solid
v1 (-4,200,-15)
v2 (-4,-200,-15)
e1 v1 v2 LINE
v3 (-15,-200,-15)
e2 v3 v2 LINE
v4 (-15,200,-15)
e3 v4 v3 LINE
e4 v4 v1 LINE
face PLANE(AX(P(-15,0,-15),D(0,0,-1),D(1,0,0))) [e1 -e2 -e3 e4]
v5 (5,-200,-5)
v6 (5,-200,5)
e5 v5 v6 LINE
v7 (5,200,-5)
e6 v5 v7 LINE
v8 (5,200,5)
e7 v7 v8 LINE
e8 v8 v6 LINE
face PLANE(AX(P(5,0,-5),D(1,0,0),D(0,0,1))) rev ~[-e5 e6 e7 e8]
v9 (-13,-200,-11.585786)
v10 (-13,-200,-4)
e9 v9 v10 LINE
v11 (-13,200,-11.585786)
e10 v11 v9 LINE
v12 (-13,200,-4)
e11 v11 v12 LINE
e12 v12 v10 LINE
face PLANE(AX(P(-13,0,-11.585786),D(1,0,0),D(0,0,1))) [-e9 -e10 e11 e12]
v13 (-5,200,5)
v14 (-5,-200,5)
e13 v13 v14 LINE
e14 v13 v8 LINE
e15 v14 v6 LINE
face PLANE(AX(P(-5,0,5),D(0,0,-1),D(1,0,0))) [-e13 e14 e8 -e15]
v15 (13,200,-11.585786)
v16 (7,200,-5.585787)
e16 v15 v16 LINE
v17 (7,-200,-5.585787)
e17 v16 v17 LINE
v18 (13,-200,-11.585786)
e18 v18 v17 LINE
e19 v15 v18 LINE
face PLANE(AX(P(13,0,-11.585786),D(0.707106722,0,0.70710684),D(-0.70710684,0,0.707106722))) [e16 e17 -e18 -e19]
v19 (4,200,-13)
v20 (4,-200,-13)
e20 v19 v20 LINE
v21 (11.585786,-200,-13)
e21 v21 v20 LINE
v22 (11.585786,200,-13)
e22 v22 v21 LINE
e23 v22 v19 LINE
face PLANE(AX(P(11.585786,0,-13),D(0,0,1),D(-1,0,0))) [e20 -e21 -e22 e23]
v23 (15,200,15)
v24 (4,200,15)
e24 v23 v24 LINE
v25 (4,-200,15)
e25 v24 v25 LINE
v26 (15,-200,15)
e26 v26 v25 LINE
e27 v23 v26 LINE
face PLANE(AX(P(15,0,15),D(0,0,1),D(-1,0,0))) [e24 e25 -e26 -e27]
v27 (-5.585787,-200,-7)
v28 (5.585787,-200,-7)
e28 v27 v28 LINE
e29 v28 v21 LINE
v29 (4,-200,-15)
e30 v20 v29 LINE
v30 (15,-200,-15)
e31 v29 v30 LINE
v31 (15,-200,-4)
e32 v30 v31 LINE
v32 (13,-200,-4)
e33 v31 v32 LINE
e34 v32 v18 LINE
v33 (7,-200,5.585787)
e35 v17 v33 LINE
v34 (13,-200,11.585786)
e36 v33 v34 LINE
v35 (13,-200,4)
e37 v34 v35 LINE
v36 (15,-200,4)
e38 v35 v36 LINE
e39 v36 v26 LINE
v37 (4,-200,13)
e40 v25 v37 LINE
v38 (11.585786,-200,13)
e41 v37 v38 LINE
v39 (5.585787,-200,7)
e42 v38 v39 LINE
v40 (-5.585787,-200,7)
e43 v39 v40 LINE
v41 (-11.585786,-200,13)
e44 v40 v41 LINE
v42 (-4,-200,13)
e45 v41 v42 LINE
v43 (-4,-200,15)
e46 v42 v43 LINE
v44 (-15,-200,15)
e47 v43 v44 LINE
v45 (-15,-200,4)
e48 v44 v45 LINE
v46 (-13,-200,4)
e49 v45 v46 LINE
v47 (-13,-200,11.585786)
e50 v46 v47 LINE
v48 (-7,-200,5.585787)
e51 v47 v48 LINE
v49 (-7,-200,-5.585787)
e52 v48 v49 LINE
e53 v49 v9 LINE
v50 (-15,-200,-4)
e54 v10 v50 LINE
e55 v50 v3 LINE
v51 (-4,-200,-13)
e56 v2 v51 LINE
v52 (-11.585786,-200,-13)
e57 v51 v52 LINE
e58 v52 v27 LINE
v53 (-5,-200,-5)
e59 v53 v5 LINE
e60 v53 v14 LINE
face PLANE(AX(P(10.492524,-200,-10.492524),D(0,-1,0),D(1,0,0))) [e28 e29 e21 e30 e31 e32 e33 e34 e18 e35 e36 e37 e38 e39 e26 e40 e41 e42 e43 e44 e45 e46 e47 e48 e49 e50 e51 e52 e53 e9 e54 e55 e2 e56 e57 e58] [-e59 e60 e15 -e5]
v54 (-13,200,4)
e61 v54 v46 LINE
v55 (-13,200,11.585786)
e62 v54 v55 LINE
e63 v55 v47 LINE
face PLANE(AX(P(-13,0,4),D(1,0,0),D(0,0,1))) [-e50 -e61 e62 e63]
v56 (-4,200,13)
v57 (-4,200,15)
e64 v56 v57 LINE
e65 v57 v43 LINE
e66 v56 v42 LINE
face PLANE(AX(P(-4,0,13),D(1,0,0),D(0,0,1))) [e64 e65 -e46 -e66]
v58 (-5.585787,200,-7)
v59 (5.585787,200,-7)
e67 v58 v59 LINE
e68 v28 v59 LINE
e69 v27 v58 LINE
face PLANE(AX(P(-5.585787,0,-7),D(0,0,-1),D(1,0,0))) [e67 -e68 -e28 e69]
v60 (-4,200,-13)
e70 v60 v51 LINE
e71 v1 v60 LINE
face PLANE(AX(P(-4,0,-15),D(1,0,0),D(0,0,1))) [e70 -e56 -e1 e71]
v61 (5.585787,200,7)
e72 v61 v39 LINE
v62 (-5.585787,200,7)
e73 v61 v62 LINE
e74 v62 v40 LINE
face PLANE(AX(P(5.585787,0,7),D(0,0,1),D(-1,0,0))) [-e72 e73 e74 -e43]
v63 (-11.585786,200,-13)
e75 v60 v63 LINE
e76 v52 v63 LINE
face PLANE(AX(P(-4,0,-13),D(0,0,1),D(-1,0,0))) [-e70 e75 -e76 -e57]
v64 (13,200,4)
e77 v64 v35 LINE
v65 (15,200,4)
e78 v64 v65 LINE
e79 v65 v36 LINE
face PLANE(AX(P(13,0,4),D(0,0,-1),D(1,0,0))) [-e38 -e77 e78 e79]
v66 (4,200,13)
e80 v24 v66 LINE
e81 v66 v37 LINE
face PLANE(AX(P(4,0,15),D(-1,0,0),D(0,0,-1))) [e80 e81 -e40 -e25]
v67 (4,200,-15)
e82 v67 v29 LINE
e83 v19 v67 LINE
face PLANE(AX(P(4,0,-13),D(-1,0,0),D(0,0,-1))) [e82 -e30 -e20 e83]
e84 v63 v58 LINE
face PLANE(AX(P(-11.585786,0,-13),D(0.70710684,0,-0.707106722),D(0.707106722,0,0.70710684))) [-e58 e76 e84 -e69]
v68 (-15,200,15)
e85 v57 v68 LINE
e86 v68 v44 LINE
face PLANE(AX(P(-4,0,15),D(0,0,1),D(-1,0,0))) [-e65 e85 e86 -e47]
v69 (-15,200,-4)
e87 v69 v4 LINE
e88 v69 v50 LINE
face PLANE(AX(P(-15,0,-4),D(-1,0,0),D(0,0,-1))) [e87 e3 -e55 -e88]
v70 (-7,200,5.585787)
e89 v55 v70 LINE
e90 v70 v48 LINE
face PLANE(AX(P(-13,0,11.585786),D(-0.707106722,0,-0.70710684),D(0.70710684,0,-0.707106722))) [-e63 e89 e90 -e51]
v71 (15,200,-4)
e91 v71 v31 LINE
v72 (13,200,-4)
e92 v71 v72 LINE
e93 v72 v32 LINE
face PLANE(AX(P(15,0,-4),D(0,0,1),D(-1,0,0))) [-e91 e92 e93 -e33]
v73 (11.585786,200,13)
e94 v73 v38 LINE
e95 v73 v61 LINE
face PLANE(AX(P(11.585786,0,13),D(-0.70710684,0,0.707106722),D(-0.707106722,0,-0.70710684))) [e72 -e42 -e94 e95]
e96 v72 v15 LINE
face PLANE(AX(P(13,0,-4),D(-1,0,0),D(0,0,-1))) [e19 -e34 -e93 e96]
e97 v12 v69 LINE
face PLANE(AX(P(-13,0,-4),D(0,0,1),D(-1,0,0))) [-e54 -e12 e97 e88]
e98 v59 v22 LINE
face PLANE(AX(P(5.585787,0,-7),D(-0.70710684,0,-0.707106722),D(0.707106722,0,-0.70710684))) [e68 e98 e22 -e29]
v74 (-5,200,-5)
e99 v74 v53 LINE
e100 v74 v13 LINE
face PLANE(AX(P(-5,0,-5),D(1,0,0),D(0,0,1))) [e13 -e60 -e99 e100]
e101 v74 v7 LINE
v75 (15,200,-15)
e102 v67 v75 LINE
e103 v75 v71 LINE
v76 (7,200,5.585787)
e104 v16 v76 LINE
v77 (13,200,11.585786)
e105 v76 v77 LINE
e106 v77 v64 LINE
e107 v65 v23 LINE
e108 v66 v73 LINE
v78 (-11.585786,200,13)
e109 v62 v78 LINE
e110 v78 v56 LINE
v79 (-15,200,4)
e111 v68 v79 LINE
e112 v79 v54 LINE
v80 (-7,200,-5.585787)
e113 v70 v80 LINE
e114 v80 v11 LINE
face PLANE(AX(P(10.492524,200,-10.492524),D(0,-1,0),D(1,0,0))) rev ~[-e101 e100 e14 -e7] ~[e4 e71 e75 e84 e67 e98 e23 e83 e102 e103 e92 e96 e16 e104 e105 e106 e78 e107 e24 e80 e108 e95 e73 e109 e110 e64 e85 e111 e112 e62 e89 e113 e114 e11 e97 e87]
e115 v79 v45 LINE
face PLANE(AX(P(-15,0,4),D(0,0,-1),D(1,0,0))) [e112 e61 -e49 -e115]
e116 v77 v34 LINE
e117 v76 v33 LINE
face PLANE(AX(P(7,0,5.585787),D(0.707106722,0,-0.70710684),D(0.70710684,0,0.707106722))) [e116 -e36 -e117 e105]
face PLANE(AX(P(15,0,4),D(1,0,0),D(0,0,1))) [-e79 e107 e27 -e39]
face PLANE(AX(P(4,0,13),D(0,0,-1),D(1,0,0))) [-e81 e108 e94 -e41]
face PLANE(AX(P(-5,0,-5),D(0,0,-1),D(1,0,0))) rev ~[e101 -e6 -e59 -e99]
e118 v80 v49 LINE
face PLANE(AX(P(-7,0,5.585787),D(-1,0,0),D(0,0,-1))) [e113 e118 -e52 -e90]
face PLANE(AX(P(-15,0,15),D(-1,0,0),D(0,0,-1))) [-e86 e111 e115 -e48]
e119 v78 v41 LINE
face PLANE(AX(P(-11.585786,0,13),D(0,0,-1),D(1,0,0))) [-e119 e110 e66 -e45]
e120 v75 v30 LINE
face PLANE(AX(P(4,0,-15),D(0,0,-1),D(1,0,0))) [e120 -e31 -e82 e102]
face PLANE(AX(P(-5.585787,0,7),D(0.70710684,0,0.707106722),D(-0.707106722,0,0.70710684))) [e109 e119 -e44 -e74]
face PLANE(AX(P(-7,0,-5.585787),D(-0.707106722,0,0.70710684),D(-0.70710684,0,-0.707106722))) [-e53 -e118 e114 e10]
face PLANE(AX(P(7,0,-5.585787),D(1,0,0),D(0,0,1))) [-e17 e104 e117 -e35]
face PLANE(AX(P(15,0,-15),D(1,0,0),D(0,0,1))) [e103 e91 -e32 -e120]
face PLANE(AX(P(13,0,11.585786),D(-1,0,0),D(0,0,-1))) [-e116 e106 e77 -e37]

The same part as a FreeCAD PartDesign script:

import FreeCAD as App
import Part
import Sketcher

V = App.Vector
Q = App.Units.Quantity


def add_polygon(sketch, points):
    """Adds a closed chain of lines whose ends are joined by coincident constraints."""
    first, n = sketch.GeometryCount, len(points)
    for a, b in zip(points, points[1:] + points[:1]):
        sketch.addGeometry(Part.LineSegment(App.Vector(*a, 0), App.Vector(*b, 0)), False)
    for i in range(n):
        sketch.addConstraint(Sketcher.Constraint("Coincident", first + i, 2, first + (i + 1) % n, 1))

doc = App.newDocument("Part")
body = doc.addObject("PartDesign::Body", "Body")

sketch1 = doc.addObject("Sketcher::SketchObject", "Sketch")
body.addObject(sketch1)
sketch1.AttachmentSupport = (doc.XZ_Plane, [""])
sketch1.MapMode = "FlatFace"
add_polygon(sketch1, [(5.585787, -7), (11.585786, -13), (4, -13), (4, -15), (15, -15), (15, -4), (13, -4), (13, -11.585786), (7, -5.585787), (7, 5.585787), (13, 11.585786), (13, 4), (15, 4), (15, 15), (4, 15), (4, 13), (11.585786, 13), (5.585787, 7), (-5.585787, 7), (-11.585786, 13), (-4, 13), (-4, 15), (-15, 15), (-15, 4), (-13, 4), (-13, 11.585786), (-7, 5.585787), (-7, -5.585787), (-13, -11.585786), (-13, -4), (-15, -4), (-15, -15), (-4, -15), (-4, -13), (-11.585786, -13), (-5.585787, -7)])
add_polygon(sketch1, [(5, -5), (-5, -5), (-5, 5), (5, 5)])
sketch1.addConstraint([
    Sketcher.Constraint("Horizontal", 1),
    Sketcher.Constraint("Vertical", 2),
    Sketcher.Constraint("Horizontal", 3),
    Sketcher.Constraint("Vertical", 4),
    Sketcher.Constraint("Horizontal", 5),
    Sketcher.Constraint("Vertical", 6),
    Sketcher.Constraint("Vertical", 8),
    Sketcher.Constraint("Vertical", 10),
    Sketcher.Constraint("Horizontal", 11),
    Sketcher.Constraint("Vertical", 12),
    Sketcher.Constraint("Horizontal", 13),
    Sketcher.Constraint("Vertical", 14),
    Sketcher.Constraint("Horizontal", 15),
    Sketcher.Constraint("Horizontal", 17),
    Sketcher.Constraint("Horizontal", 19),
    Sketcher.Constraint("Vertical", 20),
    Sketcher.Constraint("Horizontal", 21),
    Sketcher.Constraint("Vertical", 22),
    Sketcher.Constraint("Horizontal", 23),
    Sketcher.Constraint("Vertical", 24),
    Sketcher.Constraint("Vertical", 26),
    Sketcher.Constraint("Vertical", 28),
    Sketcher.Constraint("Horizontal", 29),
    Sketcher.Constraint("Vertical", 30),
    Sketcher.Constraint("Horizontal", 31),
    Sketcher.Constraint("Vertical", 32),
    Sketcher.Constraint("Horizontal", 33),
    Sketcher.Constraint("Horizontal", 35),
    Sketcher.Constraint("Horizontal", 36),
    Sketcher.Constraint("Vertical", 37),
    Sketcher.Constraint("Horizontal", 38),
    Sketcher.Constraint("Vertical", 39),
    Sketcher.Constraint("Symmetric", 0, 2, 18, 2, -1, 1),
    Sketcher.Constraint("Symmetric", 2, 2, 20, 2, -1, 1),
    Sketcher.Constraint("Symmetric", 4, 2, 22, 2, -1, 1),
    Sketcher.Constraint("Symmetric", 6, 2, 24, 2, -1, 1),
    Sketcher.Constraint("Symmetric", 7, 2, 25, 2, -1, 1),
    Sketcher.Constraint("Symmetric", 9, 2, 27, 2, -1, 1),
    Sketcher.Constraint("Symmetric", 11, 2, 29, 2, -1, 1),
    Sketcher.Constraint("Symmetric", 13, 2, 31, 2, -1, 1),
    Sketcher.Constraint("Symmetric", 15, 2, 33, 2, -1, 1),
    Sketcher.Constraint("Symmetric", 16, 2, 34, 2, -1, 1),
    Sketcher.Constraint("Symmetric", 36, 2, 38, 2, -1, 1),
    Sketcher.Constraint("Symmetric", 15, 2, 18, 2, -2),
    Sketcher.Constraint("Symmetric", 13, 2, 20, 2, -2),
    Sketcher.Constraint("Symmetric", 11, 2, 22, 2, -2),
    Sketcher.Constraint("Symmetric", 9, 2, 24, 2, -2),
    Sketcher.Constraint("Parallel", 0, 7),
    Sketcher.Constraint("Perpendicular", 7, 9),
    Sketcher.Constraint("Parallel", 9, 16),
    Sketcher.Constraint("Perpendicular", 16, 18),
    Sketcher.Constraint("Perpendicular", 25, 27),
    Sketcher.Constraint("Horizontal", 8, 2, 25, 2),
    Sketcher.Constraint("Equal", 29, 2),
    Sketcher.Constraint("Equal", 31, 4),
    Sketcher.Constraint("Equal", 33, 6),
    Sketcher.Constraint("Equal", 35, 8),
    Sketcher.Constraint("Equal", 38, 37),
    Sketcher.Constraint("Equal", 0, 7),
    Sketcher.Constraint("DistanceX", 3, 1, 3, 2, Q("11 mm")),
    Sketcher.Constraint("DistanceX", 5, 2, 5, 1, Q("2 mm")),
    Sketcher.Constraint("DistanceX", 36, 2, 36, 1, Q("10 mm")),
    Sketcher.Constraint("DistanceY", 0, 2, -1, 1, Q("13 mm")),
    Sketcher.Constraint("DistanceX", -1, 1, 7, 2, Q("7 mm")),
    Sketcher.Constraint("DistanceX", 1, 2, 1, 1, Q("7.585786 mm")),
])
pad1 = doc.addObject("PartDesign::Pad", "Pad")
body.addObject(pad1)
pad1.Profile = sketch1
pad1.Length = 400
pad1.Midplane = True

doc.recompute()
